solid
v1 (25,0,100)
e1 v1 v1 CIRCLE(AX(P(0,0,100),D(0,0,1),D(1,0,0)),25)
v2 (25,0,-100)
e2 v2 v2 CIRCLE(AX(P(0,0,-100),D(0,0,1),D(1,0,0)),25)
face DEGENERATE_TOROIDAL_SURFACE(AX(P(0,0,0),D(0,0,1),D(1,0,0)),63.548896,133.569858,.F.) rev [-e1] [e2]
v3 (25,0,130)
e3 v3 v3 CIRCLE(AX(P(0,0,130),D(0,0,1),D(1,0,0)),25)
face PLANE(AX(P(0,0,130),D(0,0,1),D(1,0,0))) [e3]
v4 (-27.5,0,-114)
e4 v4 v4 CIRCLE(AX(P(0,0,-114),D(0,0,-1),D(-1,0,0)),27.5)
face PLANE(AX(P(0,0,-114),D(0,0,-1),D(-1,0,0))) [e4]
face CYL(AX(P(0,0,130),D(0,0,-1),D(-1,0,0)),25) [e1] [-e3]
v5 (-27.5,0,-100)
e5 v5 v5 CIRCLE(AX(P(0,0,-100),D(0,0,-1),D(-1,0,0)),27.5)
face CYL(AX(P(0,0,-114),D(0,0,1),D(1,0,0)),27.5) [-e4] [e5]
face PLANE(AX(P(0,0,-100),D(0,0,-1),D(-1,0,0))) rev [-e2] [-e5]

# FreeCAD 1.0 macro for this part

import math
import FreeCAD as App
import Part
import Sketcher
from FreeCAD import Vector
Q = App.Units.Quantity

doc = App.newDocument("Part")
body = doc.addObject("PartDesign::Body", "Body")

# Sketch on YZ plane
sketch1 = body.newObject("Sketcher::SketchObject", "Sketch")
sketch1.AttachmentSupport = (doc.getObject("YZ_Plane"), [""])
sketch1.MapMode = "FlatFace"
sketch1.addGeometry([
    Part.LineSegment(Vector(25, 100, 0), Vector(0, 100, 0)),
    Part.LineSegment(Vector(0, 100, 0), Vector(0, -100, 0)),
    Part.LineSegment(Vector(0, -100, 0), Vector(25, -100, 0)),
    Part.ArcOfCircle(Part.Circle(Vector(-63.548896, 0, 0), Vector(0, 0, 1), 133.569858), math.radians(-48.475465), math.radians(48.475465)),
], False)
sketch1.addConstraint([
    Sketcher.Constraint("Coincident", 0, 2, 1, 1),
    Sketcher.Constraint("Coincident", 1, 2, 2, 1),
    Sketcher.Constraint("Coincident", 2, 2, 3, 1),
    Sketcher.Constraint("Coincident", 3, 2, 0, 1),
    Sketcher.Constraint("Horizontal", 0),
    Sketcher.Constraint("Vertical", 1),
    Sketcher.Constraint("Horizontal", 2),
    Sketcher.Constraint("Symmetric", 0, 2, 1, 2, -1, 1),
    Sketcher.Constraint("PointOnObject", 3, 3, -1),
    Sketcher.Constraint("DistanceX", 0, 2, 0, 1, Q("25 mm")),
    Sketcher.Constraint("DistanceY", 1, 2, 1, 1, Q("200 mm")),
    Sketcher.Constraint("Radius", 3, Q("133.569858 mm")),
])
revolution = body.newObject("PartDesign::Revolution", "Revolution")
revolution.Profile = sketch1
revolution.ReferenceAxis = (sketch1, ["V_Axis"])
revolution.Angle = 360

# Sketch on XY plane
sketch2 = body.newObject("Sketcher::SketchObject", "Sketch001")
sketch2.AttachmentSupport = (doc.getObject("XY_Plane"), [""])
sketch2.MapMode = "FlatFace"
sketch2.AttachmentOffset = App.Placement(Vector(0, 0, 100), App.Rotation())
sketch2.addGeometry(Part.Circle(Vector(0, 0, 0), Vector(0, 0, 1), 25), False)
sketch2.addConstraint([
    Sketcher.Constraint("Coincident", 0, 3, -1, 1),
    Sketcher.Constraint("Diameter", 0, Q("50 mm")),
])
pad1 = body.newObject("PartDesign::Pad", "Pad")
pad1.Profile = sketch2
pad1.Length = 30

# Sketch on XY plane
sketch3 = body.newObject("Sketcher::SketchObject", "Sketch002")
sketch3.AttachmentSupport = (doc.getObject("XY_Plane"), [""])
sketch3.MapMode = "FlatFace"
sketch3.AttachmentOffset = App.Placement(Vector(0, 0, -100), App.Rotation())
sketch3.addGeometry(Part.Circle(Vector(0, 0, 0), Vector(0, 0, 1), 27.5), False)
sketch3.addConstraint([
    Sketcher.Constraint("Coincident", 0, 3, -1, 1),
    Sketcher.Constraint("Diameter", 0, Q("55 mm")),
])
pad2 = body.newObject("PartDesign::Pad", "Pad001")
pad2.Profile = sketch3
pad2.Length = 14
pad2.Reversed = True

doc.recompute()
